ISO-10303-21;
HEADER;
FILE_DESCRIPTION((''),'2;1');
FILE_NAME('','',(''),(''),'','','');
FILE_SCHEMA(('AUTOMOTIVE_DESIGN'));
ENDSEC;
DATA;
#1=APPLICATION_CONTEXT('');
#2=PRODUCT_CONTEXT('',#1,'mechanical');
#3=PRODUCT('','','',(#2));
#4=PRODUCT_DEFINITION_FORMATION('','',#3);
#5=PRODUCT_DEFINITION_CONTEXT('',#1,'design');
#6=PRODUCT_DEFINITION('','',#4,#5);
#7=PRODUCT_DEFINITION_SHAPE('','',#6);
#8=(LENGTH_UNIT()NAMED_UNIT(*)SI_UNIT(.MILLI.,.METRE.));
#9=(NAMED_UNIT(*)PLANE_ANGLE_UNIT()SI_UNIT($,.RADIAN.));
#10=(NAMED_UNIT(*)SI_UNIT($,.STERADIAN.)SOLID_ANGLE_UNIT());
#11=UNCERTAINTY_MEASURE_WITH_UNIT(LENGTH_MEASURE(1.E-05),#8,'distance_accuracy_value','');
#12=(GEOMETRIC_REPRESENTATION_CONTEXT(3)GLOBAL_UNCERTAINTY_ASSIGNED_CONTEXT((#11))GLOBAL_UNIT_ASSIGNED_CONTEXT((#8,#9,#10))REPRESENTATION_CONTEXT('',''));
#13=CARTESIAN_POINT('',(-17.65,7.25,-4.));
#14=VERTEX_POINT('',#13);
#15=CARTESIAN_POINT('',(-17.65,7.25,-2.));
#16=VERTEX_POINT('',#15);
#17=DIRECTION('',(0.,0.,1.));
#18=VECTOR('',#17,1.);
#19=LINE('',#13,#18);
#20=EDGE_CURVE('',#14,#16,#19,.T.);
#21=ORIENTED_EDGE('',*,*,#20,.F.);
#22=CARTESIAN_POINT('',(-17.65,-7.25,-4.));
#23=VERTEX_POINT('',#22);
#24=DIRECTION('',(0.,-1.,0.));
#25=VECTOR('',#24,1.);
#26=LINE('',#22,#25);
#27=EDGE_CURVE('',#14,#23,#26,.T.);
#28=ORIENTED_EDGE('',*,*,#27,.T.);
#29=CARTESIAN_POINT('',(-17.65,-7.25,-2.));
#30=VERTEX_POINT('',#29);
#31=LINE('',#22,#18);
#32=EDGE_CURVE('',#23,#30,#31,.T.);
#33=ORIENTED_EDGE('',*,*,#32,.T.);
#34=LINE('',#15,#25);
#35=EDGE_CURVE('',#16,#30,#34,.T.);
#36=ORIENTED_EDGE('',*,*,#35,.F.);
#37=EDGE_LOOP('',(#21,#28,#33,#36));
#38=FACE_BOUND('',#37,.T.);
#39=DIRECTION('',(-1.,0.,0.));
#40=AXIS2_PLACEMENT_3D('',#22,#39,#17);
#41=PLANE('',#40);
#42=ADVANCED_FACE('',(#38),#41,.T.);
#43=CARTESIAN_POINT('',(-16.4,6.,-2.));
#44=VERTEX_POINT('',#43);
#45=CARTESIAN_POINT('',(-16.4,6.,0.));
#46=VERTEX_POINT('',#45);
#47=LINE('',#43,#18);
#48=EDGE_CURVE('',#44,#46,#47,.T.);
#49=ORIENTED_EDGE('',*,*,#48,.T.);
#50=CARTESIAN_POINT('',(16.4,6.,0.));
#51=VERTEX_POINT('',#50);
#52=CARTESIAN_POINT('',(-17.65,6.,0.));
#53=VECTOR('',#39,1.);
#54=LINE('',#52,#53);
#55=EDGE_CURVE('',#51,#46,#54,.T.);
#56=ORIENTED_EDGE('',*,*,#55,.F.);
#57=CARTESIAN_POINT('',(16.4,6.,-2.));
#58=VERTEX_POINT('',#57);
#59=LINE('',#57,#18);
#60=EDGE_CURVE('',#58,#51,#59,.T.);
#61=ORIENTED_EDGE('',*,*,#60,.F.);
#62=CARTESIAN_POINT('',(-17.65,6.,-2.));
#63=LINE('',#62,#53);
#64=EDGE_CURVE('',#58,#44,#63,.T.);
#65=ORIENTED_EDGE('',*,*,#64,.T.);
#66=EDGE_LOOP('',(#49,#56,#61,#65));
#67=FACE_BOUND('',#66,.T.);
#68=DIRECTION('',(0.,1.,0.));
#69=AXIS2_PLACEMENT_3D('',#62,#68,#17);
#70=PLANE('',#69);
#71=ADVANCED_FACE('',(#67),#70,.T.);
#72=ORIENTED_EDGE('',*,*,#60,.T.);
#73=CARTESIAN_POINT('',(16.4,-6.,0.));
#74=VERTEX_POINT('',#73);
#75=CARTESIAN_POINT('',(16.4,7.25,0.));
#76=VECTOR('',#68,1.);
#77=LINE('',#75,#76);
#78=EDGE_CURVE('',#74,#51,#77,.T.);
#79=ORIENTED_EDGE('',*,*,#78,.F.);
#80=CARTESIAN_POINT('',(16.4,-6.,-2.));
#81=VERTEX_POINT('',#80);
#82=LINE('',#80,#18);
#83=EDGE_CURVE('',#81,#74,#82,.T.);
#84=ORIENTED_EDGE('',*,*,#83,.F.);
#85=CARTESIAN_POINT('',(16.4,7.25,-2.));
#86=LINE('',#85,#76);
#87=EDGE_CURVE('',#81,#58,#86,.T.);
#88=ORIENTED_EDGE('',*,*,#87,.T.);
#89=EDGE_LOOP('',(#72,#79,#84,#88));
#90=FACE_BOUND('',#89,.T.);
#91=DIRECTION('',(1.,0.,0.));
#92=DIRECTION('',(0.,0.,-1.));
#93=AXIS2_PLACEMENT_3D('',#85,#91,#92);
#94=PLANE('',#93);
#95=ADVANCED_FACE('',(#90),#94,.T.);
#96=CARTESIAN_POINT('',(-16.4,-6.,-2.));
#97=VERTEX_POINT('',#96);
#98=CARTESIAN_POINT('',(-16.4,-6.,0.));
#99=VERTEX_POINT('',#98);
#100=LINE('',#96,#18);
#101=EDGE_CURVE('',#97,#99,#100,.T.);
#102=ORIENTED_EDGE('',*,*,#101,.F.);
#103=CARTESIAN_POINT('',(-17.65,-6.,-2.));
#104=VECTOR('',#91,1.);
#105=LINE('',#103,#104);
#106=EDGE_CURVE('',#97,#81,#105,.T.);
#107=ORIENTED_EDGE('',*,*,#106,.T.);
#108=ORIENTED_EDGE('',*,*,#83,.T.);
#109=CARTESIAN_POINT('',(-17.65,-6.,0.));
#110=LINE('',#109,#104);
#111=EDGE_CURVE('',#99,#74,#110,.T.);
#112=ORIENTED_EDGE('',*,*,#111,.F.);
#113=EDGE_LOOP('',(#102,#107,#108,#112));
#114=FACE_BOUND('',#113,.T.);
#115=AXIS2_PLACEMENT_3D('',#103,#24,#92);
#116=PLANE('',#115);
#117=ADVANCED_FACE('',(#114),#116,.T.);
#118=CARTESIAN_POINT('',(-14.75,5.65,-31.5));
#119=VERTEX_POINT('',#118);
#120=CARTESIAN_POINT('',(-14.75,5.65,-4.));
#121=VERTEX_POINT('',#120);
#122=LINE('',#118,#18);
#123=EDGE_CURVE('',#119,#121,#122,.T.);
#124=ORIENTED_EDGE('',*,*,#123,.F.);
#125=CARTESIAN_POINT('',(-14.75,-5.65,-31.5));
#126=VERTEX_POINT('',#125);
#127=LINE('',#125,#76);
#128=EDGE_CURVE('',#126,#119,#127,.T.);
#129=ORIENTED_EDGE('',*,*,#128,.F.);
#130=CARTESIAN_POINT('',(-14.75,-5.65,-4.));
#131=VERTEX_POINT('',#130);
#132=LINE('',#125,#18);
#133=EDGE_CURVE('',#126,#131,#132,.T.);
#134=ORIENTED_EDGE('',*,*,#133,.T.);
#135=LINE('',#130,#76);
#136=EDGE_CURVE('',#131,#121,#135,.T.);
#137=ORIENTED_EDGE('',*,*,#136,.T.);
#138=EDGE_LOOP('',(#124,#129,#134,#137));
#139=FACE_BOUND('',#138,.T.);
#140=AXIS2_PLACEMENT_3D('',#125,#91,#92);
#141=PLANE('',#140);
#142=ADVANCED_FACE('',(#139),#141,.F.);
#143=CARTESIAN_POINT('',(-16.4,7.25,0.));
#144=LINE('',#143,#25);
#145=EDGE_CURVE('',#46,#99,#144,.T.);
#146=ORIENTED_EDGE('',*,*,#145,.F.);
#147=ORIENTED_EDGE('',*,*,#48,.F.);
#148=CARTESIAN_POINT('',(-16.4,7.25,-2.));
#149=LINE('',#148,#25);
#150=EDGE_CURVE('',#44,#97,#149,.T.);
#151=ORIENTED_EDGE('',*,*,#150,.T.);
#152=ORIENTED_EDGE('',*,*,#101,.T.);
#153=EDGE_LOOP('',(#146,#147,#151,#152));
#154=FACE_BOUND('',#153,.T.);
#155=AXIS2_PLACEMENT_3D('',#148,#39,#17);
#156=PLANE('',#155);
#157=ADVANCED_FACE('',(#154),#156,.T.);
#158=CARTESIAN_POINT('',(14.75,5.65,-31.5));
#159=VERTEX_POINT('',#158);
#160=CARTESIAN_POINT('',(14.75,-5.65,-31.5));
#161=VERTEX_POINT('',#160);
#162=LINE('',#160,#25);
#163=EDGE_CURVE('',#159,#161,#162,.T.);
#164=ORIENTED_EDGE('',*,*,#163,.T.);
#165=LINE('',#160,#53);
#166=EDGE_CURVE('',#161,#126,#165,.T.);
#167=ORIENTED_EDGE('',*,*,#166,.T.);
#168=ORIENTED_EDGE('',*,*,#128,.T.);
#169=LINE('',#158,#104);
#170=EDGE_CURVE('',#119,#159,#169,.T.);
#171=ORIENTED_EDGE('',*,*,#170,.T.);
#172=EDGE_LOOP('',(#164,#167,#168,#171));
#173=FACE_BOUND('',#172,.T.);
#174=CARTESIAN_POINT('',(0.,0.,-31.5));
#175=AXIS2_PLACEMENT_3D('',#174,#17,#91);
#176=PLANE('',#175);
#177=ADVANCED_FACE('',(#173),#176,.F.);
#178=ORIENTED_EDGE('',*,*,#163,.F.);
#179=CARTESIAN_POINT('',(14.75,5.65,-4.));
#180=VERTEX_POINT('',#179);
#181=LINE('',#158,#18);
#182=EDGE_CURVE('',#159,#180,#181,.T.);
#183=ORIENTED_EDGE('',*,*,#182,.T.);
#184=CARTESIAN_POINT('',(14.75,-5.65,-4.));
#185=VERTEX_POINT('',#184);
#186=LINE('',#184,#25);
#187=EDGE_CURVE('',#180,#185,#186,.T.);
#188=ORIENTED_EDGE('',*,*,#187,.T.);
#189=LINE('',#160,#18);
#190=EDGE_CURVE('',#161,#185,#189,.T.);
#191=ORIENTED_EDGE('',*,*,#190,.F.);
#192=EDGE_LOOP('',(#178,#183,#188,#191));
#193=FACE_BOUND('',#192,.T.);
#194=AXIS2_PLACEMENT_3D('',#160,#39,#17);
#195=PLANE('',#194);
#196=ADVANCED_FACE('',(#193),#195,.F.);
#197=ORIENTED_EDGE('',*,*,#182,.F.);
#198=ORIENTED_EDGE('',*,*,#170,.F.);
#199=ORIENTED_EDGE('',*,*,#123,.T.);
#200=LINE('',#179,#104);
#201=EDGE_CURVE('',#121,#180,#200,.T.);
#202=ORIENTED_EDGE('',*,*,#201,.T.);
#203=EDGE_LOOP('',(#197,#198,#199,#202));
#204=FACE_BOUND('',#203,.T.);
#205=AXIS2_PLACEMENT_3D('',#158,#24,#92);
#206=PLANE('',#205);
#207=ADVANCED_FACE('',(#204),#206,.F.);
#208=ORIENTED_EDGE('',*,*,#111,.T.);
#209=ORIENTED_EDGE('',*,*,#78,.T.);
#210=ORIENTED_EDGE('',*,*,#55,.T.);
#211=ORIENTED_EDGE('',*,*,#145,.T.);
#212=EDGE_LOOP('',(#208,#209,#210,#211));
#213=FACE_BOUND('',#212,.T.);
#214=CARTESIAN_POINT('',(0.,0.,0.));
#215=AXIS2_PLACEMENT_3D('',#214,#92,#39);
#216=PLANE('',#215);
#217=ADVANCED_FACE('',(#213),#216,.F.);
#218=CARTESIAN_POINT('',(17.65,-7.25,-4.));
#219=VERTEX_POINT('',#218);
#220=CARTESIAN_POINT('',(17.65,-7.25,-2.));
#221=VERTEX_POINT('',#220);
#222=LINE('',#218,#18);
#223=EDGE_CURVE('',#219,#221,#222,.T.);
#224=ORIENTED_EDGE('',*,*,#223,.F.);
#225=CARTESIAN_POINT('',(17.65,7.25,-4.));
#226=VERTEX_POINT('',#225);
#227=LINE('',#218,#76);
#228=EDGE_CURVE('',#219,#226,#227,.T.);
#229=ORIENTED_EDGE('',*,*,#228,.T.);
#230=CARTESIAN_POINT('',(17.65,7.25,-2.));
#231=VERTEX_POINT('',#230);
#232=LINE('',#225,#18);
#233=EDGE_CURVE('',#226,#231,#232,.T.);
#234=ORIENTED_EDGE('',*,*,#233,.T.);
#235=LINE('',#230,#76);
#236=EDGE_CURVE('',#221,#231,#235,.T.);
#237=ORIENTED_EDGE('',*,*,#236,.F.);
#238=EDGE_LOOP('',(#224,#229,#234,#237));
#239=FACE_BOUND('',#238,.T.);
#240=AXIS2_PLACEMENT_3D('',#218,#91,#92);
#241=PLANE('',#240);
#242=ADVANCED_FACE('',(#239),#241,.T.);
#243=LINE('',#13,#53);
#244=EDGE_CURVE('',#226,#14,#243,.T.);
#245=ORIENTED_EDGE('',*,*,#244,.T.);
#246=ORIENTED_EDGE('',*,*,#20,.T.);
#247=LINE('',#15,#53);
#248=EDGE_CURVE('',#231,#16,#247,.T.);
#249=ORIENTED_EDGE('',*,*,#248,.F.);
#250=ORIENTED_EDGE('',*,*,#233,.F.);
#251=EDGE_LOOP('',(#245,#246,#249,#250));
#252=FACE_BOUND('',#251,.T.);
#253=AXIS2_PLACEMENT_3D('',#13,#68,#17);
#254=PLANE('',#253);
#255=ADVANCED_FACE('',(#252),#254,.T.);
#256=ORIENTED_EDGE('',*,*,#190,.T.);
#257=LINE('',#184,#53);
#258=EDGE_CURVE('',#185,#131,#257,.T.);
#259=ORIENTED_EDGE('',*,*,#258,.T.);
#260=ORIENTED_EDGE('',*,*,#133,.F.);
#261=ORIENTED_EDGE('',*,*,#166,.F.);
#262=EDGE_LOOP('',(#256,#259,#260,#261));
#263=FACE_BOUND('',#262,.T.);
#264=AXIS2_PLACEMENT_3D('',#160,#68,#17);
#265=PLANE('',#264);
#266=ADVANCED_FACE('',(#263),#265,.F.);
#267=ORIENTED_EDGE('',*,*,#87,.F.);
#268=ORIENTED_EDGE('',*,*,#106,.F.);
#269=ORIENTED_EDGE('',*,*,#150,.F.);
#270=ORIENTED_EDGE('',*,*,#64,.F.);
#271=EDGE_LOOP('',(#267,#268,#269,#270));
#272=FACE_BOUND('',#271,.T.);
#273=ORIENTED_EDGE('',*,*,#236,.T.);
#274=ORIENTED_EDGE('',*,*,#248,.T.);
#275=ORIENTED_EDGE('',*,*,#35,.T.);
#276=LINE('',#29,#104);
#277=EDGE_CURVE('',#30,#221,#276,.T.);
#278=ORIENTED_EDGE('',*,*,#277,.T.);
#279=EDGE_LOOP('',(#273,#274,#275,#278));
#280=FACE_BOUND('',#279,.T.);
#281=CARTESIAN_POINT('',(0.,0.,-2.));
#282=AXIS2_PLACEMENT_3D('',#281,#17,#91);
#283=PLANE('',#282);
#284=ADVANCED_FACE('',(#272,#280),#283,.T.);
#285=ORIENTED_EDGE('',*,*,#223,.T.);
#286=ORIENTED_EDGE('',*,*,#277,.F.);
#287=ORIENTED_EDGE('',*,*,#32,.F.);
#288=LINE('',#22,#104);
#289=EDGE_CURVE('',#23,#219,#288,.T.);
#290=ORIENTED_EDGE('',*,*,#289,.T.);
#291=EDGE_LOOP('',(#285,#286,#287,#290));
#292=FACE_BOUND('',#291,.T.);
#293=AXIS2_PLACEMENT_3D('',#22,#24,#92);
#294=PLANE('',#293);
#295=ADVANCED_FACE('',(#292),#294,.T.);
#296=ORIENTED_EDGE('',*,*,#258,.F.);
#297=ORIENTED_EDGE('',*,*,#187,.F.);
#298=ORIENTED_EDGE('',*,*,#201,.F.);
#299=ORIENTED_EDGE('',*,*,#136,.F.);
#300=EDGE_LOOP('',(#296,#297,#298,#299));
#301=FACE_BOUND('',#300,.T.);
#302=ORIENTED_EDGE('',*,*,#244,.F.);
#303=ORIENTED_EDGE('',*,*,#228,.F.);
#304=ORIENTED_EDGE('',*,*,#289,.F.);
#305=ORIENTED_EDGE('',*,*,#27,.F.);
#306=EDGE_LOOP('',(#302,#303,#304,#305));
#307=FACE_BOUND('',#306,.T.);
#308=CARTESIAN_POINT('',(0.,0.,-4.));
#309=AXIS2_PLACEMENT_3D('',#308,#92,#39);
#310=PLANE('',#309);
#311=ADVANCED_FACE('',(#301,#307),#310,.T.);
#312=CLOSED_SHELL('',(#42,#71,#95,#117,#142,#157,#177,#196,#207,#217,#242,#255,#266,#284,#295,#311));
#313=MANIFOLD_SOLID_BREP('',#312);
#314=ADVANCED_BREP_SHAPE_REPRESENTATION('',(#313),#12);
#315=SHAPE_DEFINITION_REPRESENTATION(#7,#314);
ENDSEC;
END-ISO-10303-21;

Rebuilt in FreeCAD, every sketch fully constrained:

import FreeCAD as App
import Part
import Sketcher
from FreeCAD import Vector


def add_polygon(sketch, points):
    """Adds a closed chain of lines whose ends are joined by coincident constraints."""
    first, n = sketch.GeometryCount, len(points)
    for a, b in zip(points, points[1:] + points[:1]):
        sketch.addGeometry(Part.LineSegment(App.Vector(*a, 0), App.Vector(*b, 0)), False)
    for i in range(n):
        sketch.addConstraint(Sketcher.Constraint("Coincident", first + i, 2, first + (i + 1) % n, 1))

doc = App.newDocument("Part")
body = doc.addObject("PartDesign::Body", "Body")

# Sketch on XY plane
sketch1 = body.newObject("Sketcher::SketchObject", "Sketch")
sketch1.AttachmentSupport = (doc.getObject("XY_Plane"), [""])
sketch1.MapMode = "FlatFace"
add_polygon(sketch1, [(-17.65, 7.25), (-17.65, -7.25), (17.65, -7.25), (17.65, 7.25)])  # lines 0-3
sketch1.addConstraint(Sketcher.Constraint("Vertical", 0))
sketch1.addConstraint(Sketcher.Constraint("Horizontal", 1))
sketch1.addConstraint(Sketcher.Constraint("Vertical", 2))
sketch1.addConstraint(Sketcher.Constraint("Horizontal", 3))
sketch1.addConstraint(Sketcher.Constraint("Symmetric", 0, 2, 2, 2, -1, 1))
sketch1.addConstraint(Sketcher.Constraint("DistanceX", 1, 1, 1, 2, 35.3))
sketch1.addConstraint(Sketcher.Constraint("DistanceY", 0, 2, 0, 1, 14.5))
pad1 = body.newObject("PartDesign::Pad", "Pad")
pad1.Profile = sketch1
pad1.Length = 4
pad1.Reversed = True

# Sketch on XY plane
sketch2 = body.newObject("Sketcher::SketchObject", "Sketch001")
sketch2.AttachmentSupport = (doc.getObject("XY_Plane"), [""])
sketch2.MapMode = "FlatFace"
add_polygon(sketch2, [(-17.65, 7.25), (-17.65, -7.25), (17.65, -7.25), (17.65, 7.25)])  # lines 0-3
add_polygon(sketch2, [(16.4, -6), (-16.4, -6), (-16.4, 6), (16.4, 6)])  # lines 4-7
sketch2.addConstraint(Sketcher.Constraint("Vertical", 0))
sketch2.addConstraint(Sketcher.Constraint("Horizontal", 1))
sketch2.addConstraint(Sketcher.Constraint("Vertical", 2))
sketch2.addConstraint(Sketcher.Constraint("Horizontal", 3))
sketch2.addConstraint(Sketcher.Constraint("Horizontal", 4))
sketch2.addConstraint(Sketcher.Constraint("Vertical", 5))
sketch2.addConstraint(Sketcher.Constraint("Horizontal", 6))
sketch2.addConstraint(Sketcher.Constraint("Vertical", 7))
sketch2.addConstraint(Sketcher.Constraint("Symmetric", 0, 2, 2, 2, -1, 1))
sketch2.addConstraint(Sketcher.Constraint("Symmetric", 4, 2, 6, 2, -1, 1))
sketch2.addConstraint(Sketcher.Constraint("DistanceY", 5, 1, 5, 2, 12.0))
sketch2.addConstraint(Sketcher.Constraint("DistanceX", 1, 1, 1, 2, 35.3))
sketch2.addConstraint(Sketcher.Constraint("DistanceX", 4, 2, 4, 1, 32.8))
sketch2.addConstraint(Sketcher.Constraint("DistanceY", 0, 2, 0, 1, 14.5))
pocket1 = body.newObject("PartDesign::Pocket", "Pocket")
pocket1.Profile = sketch2
pocket1.Length = 2

# Sketch on XY plane
sketch3 = body.newObject("Sketcher::SketchObject", "Sketch002")
sketch3.AttachmentSupport = (doc.getObject("XY_Plane"), [""])
sketch3.MapMode = "FlatFace"
sketch3.AttachmentOffset = App.Placement(Vector(0, 0, -4), App.Rotation())
add_polygon(sketch3, [(14.75, 5.65), (14.75, -5.65), (-14.75, -5.65), (-14.75, 5.65)])  # lines 0-3
sketch3.addConstraint(Sketcher.Constraint("Vertical", 0))
sketch3.addConstraint(Sketcher.Constraint("Horizontal", 1))
sketch3.addConstraint(Sketcher.Constraint("Vertical", 2))
sketch3.addConstraint(Sketcher.Constraint("Horizontal", 3))
sketch3.addConstraint(Sketcher.Constraint("Symmetric", 0, 2, 2, 2, -1, 1))
sketch3.addConstraint(Sketcher.Constraint("DistanceX", 1, 2, 1, 1, 29.5))
sketch3.addConstraint(Sketcher.Constraint("DistanceY", 0, 2, 0, 1, 11.3))
pad2 = body.newObject("PartDesign::Pad", "Pad001")
pad2.Profile = sketch3
pad2.Length = 27.5
pad2.Reversed = True

doc.recompute()
